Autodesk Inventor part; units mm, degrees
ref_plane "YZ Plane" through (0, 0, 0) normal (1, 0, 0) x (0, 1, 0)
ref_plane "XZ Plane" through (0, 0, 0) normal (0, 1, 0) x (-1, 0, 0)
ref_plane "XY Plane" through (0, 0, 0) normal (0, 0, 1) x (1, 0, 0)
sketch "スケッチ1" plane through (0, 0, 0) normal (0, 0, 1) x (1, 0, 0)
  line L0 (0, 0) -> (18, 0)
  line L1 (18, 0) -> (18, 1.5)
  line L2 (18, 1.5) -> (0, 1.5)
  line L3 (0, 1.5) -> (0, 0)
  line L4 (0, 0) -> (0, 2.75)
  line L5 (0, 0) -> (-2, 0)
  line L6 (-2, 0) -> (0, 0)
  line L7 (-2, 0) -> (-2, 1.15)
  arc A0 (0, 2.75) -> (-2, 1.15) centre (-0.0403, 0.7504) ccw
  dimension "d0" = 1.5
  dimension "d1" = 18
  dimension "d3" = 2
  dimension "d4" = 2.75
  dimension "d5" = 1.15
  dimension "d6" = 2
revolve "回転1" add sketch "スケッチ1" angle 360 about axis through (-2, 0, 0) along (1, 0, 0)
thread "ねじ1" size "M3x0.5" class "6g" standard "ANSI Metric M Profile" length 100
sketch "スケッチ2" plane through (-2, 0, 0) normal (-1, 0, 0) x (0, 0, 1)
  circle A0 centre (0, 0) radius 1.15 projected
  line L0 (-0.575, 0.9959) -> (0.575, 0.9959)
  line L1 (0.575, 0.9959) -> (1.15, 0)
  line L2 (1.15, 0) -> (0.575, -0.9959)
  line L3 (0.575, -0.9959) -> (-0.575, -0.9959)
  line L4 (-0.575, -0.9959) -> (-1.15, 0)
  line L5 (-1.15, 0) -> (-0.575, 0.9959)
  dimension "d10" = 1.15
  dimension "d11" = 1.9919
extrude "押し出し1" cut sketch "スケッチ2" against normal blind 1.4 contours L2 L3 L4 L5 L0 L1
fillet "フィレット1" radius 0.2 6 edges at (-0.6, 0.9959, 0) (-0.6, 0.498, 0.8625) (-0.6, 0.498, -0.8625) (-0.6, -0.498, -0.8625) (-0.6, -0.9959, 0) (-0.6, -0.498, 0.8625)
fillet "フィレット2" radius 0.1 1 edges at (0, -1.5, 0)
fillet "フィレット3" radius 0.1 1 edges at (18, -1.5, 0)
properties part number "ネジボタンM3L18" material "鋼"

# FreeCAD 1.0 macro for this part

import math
import FreeCAD as App
import Part
import Sketcher

V = App.Vector
Q = App.Units.Quantity


def edges_at(feature, points):
    """Names of the edges that pass closest to the given points."""
    edges = feature.Shape.Edges
    near = lambda p: min(range(len(edges)), key=lambda i: edges[i].distToShape(Part.Vertex(*p))[0])
    return sorted({f"Edge{near(p) + 1}" for p in points})

doc = App.newDocument("Part")
body = doc.addObject("PartDesign::Body", "Body")

# Sketch on XY plane
sketch1 = doc.addObject("Sketcher::SketchObject", "Sketch")
body.addObject(sketch1)
sketch1.AttachmentSupport = (doc.XY_Plane, [""])
sketch1.MapMode = "FlatFace"
sketch1.addGeometry(Part.LineSegment(V(18, 1.5, 0), V(0, 1.5, 0)), False)
sketch1.addGeometry(Part.LineSegment(V(0, 1.5, 0), V(0, 2.75, 0)), False)
sketch1.addGeometry(Part.ArcOfCircle(Part.Circle(V(-0.0403, 0.7504, 0), V(0, 0, 1), 2.000006), math.radians(88.845415), math.radians(168.474888)), False)
sketch1.addGeometry(Part.LineSegment(V(-2, 1.15, 0), V(-2, 0, 0)), False)
sketch1.addGeometry(Part.LineSegment(V(-2, 0, 0), V(18, 0, 0)), False)
sketch1.addGeometry(Part.LineSegment(V(18, 0, 0), V(18, 1.5, 0)), False)
sketch1.addConstraint(Sketcher.Constraint("Coincident", 0, 2, 1, 1))
sketch1.addConstraint(Sketcher.Constraint("Coincident", 1, 2, 2, 1))
sketch1.addConstraint(Sketcher.Constraint("Coincident", 2, 2, 3, 1))
sketch1.addConstraint(Sketcher.Constraint("Coincident", 3, 2, 4, 1))
sketch1.addConstraint(Sketcher.Constraint("Coincident", 4, 2, 5, 1))
sketch1.addConstraint(Sketcher.Constraint("Coincident", 5, 2, 0, 1))
sketch1.addConstraint(Sketcher.Constraint("Horizontal", 0))
sketch1.addConstraint(Sketcher.Constraint("Vertical", 1))
sketch1.addConstraint(Sketcher.Constraint("Vertical", 3))
sketch1.addConstraint(Sketcher.Constraint("Horizontal", 4))
sketch1.addConstraint(Sketcher.Constraint("Vertical", 5))
sketch1.addConstraint(Sketcher.Constraint("PointOnObject", 0, 2, -2))
sketch1.addConstraint(Sketcher.Constraint("PointOnObject", 3, 2, -1))
sketch1.addConstraint(Sketcher.Constraint("Radius", 2, Q("2 mm")))
sketch1.addConstraint(Sketcher.Constraint("DistanceX", 0, 2, 0, 1, Q("18 mm")))
sketch1.addConstraint(Sketcher.Constraint("DistanceY", 5, 1, 5, 2, Q("1.5 mm")))
sketch1.addConstraint(Sketcher.Constraint("DistanceX", 2, 2, -1, 1, Q("2 mm")))
sketch1.addConstraint(Sketcher.Constraint("DistanceY", 3, 2, 3, 1, Q("1.15 mm")))
sketch1.addConstraint(Sketcher.Constraint("DistanceY", -1, 1, 1, 2, Q("2.75 mm")))
revolution = doc.addObject("PartDesign::Revolution", "Revolution")
body.addObject(revolution)
revolution.Profile = sketch1
revolution.ReferenceAxis = (sketch1, ["H_Axis"])
revolution.Angle = 360

# Sketch on YZ plane
sketch2 = doc.addObject("Sketcher::SketchObject", "Sketch001")
body.addObject(sketch2)
sketch2.AttachmentSupport = (doc.YZ_Plane, [""])
sketch2.MapMode = "FlatFace"
sketch2.AttachmentOffset = App.Placement(V(0, 0, -2), App.Rotation())
sketch2.addGeometry(Part.LineSegment(V(-0.9959, 0.575, 0), V(0, 1.15, 0)), False)
sketch2.addGeometry(Part.LineSegment(V(0, 1.15, 0), V(0.9959, 0.575, 0)), False)
sketch2.addGeometry(Part.LineSegment(V(0.9959, 0.575, 0), V(0.9959, -0.575, 0)), False)
sketch2.addGeometry(Part.LineSegment(V(0.9959, -0.575, 0), V(0, -1.15, 0)), False)
sketch2.addGeometry(Part.LineSegment(V(0, -1.15, 0), V(-0.9959, -0.575, 0)), False)
sketch2.addGeometry(Part.LineSegment(V(-0.9959, -0.575, 0), V(-0.9959, 0.575, 0)), False)
sketch2.addConstraint(Sketcher.Constraint("Coincident", 0, 2, 1, 1))
sketch2.addConstraint(Sketcher.Constraint("Coincident", 1, 2, 2, 1))
sketch2.addConstraint(Sketcher.Constraint("Coincident", 2, 2, 3, 1))
sketch2.addConstraint(Sketcher.Constraint("Coincident", 3, 2, 4, 1))
sketch2.addConstraint(Sketcher.Constraint("Coincident", 4, 2, 5, 1))
sketch2.addConstraint(Sketcher.Constraint("Coincident", 5, 2, 0, 1))
sketch2.addConstraint(Sketcher.Constraint("Vertical", 2))
sketch2.addConstraint(Sketcher.Constraint("Vertical", 5))
sketch2.addConstraint(Sketcher.Constraint("Symmetric", 0, 2, 3, 2, -1, 1))
sketch2.addConstraint(Sketcher.Constraint("Symmetric", 1, 2, 4, 2, -1, 1))
sketch2.addConstraint(Sketcher.Constraint("PointOnObject", 0, 2, -2))
sketch2.addConstraint(Sketcher.Constraint("Parallel", 0, 3))
sketch2.addConstraint(Sketcher.Constraint("Horizontal", 2, 2, 4, 2))
sketch2.addConstraint(Sketcher.Constraint("DistanceY", 2, 2, 2, 1, Q("1.15 mm")))
sketch2.addConstraint(Sketcher.Constraint("Distance", 0, Q("1.15 mm")))
sketch2.addConstraint(Sketcher.Constraint("DistanceY", -1, 1, 0, 2, Q("1.15 mm")))
pocket1 = doc.addObject("PartDesign::Pocket", "Pocket")
body.addObject(pocket1)
pocket1.Profile = sketch2
pocket1.Length = 1.4
pocket1.Reversed = True
doc.recompute()

fillet = doc.addObject("PartDesign::Fillet", "Fillet")
body.addObject(fillet)
fillet.Base = (pocket1, edges_at(pocket1, [
    (-0.6, 0.996, 0),
    (-0.6, 0.498, 0.863),
    (-0.6, 0.498, -0.863),
    (-0.6, -0.498, -0.863),
    (-0.6, -0.996, 0),
    (-0.6, -0.498, 0.863),
]))
fillet.Radius = 0.2
doc.recompute()

fillet2 = doc.addObject("PartDesign::Fillet", "Fillet001")
body.addObject(fillet2)
fillet2.Base = (fillet, edges_at(fillet, [(0, -1.5, 0)]))
fillet2.Radius = 0.1
doc.recompute()

fillet3 = doc.addObject("PartDesign::Fillet", "Fillet002")
body.addObject(fillet3)
fillet3.Base = (fillet2, edges_at(fillet2, [(18, -1.5, 0)]))
fillet3.Radius = 0.1

doc.recompute()
